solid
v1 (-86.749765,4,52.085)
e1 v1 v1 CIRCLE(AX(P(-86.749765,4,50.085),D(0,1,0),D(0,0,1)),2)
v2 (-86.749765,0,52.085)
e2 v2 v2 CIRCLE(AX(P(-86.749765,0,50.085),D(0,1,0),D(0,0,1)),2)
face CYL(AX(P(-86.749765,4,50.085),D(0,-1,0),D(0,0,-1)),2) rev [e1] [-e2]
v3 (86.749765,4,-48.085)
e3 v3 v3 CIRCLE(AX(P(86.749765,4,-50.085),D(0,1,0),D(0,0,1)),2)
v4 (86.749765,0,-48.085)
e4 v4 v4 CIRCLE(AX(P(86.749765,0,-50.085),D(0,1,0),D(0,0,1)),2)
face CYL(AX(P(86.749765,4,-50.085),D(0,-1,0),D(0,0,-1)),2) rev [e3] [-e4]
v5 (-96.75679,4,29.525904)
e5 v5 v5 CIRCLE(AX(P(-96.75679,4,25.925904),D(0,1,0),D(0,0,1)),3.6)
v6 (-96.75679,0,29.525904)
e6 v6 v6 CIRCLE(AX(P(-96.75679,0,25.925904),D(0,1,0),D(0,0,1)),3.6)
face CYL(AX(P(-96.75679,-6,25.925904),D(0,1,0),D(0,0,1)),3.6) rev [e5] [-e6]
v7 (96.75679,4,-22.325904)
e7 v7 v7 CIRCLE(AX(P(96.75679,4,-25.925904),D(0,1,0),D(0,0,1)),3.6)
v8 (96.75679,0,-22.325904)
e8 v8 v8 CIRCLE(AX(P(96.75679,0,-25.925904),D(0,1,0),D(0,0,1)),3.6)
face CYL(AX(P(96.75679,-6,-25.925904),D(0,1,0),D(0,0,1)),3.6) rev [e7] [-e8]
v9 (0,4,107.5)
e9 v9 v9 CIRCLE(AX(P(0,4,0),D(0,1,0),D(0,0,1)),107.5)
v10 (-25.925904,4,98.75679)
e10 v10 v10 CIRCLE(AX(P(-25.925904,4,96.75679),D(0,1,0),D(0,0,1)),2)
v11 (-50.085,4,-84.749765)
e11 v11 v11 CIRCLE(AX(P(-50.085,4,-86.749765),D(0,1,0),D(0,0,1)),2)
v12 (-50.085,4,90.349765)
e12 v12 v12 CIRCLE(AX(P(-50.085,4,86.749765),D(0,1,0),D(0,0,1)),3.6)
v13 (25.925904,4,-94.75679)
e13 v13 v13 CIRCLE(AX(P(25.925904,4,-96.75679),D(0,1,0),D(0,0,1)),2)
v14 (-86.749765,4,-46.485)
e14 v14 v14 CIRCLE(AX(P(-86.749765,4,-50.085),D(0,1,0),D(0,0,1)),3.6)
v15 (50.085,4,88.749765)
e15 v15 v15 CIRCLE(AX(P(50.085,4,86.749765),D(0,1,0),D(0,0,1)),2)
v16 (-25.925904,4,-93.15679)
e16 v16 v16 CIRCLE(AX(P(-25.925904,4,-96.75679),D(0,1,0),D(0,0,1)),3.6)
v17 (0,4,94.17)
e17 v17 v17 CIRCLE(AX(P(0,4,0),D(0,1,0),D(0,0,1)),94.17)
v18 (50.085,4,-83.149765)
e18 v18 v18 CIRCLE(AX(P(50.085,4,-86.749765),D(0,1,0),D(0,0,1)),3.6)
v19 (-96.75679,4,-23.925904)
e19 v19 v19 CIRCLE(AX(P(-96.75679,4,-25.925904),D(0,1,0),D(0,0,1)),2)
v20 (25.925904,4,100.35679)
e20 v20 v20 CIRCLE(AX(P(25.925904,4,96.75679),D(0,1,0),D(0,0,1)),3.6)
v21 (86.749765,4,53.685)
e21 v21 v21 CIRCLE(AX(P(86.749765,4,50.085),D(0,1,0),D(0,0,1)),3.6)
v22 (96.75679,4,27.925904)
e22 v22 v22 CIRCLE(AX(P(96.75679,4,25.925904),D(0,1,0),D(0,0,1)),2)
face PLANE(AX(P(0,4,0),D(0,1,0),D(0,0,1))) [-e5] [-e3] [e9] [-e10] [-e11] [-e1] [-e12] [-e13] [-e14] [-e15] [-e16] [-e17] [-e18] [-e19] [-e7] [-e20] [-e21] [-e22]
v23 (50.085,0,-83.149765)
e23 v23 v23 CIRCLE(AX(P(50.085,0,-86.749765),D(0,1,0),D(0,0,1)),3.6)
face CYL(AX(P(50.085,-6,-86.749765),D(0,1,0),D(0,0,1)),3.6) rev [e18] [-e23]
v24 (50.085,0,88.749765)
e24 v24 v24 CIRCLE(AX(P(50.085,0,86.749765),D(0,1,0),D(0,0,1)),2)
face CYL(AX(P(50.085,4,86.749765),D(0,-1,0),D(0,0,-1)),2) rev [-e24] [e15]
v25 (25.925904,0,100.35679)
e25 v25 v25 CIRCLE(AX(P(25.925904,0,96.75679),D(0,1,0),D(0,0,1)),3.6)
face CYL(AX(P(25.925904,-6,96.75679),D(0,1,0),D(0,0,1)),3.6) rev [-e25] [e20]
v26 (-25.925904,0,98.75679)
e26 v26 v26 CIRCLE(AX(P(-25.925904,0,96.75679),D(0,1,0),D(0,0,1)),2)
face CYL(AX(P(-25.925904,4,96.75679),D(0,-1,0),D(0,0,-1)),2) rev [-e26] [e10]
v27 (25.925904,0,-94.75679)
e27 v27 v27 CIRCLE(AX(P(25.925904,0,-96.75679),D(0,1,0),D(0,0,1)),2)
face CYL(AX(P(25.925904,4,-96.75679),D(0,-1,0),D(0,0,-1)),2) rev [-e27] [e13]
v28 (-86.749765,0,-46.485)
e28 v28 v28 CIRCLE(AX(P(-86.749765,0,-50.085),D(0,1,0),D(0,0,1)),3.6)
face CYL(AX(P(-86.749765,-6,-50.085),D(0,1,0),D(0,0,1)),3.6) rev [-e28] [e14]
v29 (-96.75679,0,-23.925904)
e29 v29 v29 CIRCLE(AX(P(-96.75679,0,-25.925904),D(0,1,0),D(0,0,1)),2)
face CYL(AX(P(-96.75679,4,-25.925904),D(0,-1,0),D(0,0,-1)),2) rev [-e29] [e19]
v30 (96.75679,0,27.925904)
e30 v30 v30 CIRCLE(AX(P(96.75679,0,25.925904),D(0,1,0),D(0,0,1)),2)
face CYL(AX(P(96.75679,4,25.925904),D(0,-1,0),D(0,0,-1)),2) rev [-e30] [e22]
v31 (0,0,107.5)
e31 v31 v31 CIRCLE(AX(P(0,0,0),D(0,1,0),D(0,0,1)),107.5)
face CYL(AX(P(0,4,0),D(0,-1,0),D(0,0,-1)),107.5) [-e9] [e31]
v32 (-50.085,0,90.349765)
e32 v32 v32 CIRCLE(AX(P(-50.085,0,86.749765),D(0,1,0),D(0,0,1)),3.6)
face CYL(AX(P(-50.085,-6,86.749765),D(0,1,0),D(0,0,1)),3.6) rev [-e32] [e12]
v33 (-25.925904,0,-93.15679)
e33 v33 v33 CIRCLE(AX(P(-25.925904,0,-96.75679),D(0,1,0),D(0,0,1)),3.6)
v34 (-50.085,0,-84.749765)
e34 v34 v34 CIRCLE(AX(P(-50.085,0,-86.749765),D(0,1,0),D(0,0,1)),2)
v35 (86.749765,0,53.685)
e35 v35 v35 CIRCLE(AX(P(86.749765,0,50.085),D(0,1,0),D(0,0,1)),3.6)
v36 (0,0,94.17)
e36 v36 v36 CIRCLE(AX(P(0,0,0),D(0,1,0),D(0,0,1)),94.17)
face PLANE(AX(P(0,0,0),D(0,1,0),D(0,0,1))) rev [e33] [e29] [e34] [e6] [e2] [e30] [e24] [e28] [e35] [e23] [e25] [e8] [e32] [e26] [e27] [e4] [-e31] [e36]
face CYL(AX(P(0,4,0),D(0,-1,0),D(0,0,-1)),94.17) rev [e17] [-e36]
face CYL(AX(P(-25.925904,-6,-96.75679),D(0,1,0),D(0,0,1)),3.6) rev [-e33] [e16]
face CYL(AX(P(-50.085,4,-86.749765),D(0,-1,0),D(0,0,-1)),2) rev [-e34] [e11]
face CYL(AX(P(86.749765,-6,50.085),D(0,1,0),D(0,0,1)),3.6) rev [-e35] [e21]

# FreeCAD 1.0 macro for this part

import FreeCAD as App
import Part
import Sketcher
Q = App.Units.Quantity

doc = App.newDocument("Part")
body = doc.addObject("PartDesign::Body", "Body")

sketch1 = body.newObject("Sketcher::SketchObject", "Sketch")
sketch1.AttachmentSupport = (doc.getObject("XZ_Plane"), [""])
sketch1.MapMode = "FlatFace"
sketch1.addGeometry([
    Part.Circle(App.Vector(0, 0, 0), App.Vector(0, 0, 1), 107.5),
    Part.Circle(App.Vector(-50.1, -86.7, 0), App.Vector(0, 0, 1), 2),
    Part.Circle(App.Vector(-96.8, -25.9, 0), App.Vector(0, 0, 1), 2),
    Part.Circle(App.Vector(-86.7, 50.1, 0), App.Vector(0, 0, 1), 2),
    Part.Circle(App.Vector(-25.9, 96.8, 0), App.Vector(0, 0, 1), 2),
    Part.Circle(App.Vector(25.9, -96.8, 0), App.Vector(0, 0, 1), 2),
    Part.Circle(App.Vector(86.7, -50.1, 0), App.Vector(0, 0, 1), 2),
    Part.Circle(App.Vector(0, 0, 0), App.Vector(0, 0, 1), 94.2),
    Part.Circle(App.Vector(96.8, 25.9, 0), App.Vector(0, 0, 1), 2),
    Part.Circle(App.Vector(50.1, 86.7, 0), App.Vector(0, 0, 1), 2),
], False)
sketch1.addConstraint([
    Sketcher.Constraint("Coincident", 0, 3, -1, 1),
    Sketcher.Constraint("Coincident", 7, 3, -1, 1),
    Sketcher.Constraint("Equal", 1, 2),
    Sketcher.Constraint("Equal", 2, 3),
    Sketcher.Constraint("Equal", 3, 4),
    Sketcher.Constraint("Equal", 4, 5),
    Sketcher.Constraint("Equal", 5, 6),
    Sketcher.Constraint("Equal", 6, 8),
    Sketcher.Constraint("Equal", 8, 9),
    Sketcher.Constraint("Symmetric", 4, 3, 5, 3, -1, 1),
    Sketcher.Constraint("Symmetric", 3, 3, 6, 3, -1, 1),
    Sketcher.Constraint("Symmetric", 2, 3, 8, 3, -1, 1),
    Sketcher.Constraint("Symmetric", 1, 3, 9, 3, -1, 1),
    Sketcher.Constraint("Diameter", 0, Q("215 mm")),
    Sketcher.Constraint("Diameter", 1, Q("4 mm")),
    Sketcher.Constraint("Diameter", 7, Q("188.34 mm")),
    Sketcher.Constraint("DistanceX", 1, 3, -1, 1, Q("50.085 mm")),
    Sketcher.Constraint("DistanceY", -1, 1, 3, 3, Q("50.085 mm")),
    Sketcher.Constraint("DistanceX", 2, 3, -1, 1, Q("96.75679 mm")),
    Sketcher.Constraint("DistanceY", -1, 1, 4, 3, Q("96.75679 mm")),
    Sketcher.Constraint("DistanceY", 1, 3, 2, 3, Q("60.823861 mm")),
    Sketcher.Constraint("DistanceX", 3, 3, 4, 3, Q("60.823861 mm")),
    Sketcher.Constraint("DistanceX", 3, 3, 5, 3, Q("112.675668 mm")),
    Sketcher.Constraint("DistanceY", 1, 3, -1, 1, Q("86.749765 mm")),
])
pad1 = body.newObject("PartDesign::Pad", "Pad")
pad1.Profile = sketch1
pad1.Length = 4
pad1.Reversed = True

sketch2 = body.newObject("Sketcher::SketchObject", "Sketch001")
sketch2.AttachmentSupport = (doc.getObject("XZ_Plane"), [""])
sketch2.MapMode = "FlatFace"
sketch2.AttachmentOffset = App.Placement(App.Vector(0, 0, -4), App.Rotation())
sketch2.addGeometry([
    Part.Circle(App.Vector(96.8, -25.9, 0), App.Vector(0, 0, 1), 3.6),
    Part.Circle(App.Vector(86.7, 50.1, 0), App.Vector(0, 0, 1), 3.6),
    Part.Circle(App.Vector(25.9, 96.8, 0), App.Vector(0, 0, 1), 3.6),
    Part.Circle(App.Vector(-50.1, 86.7, 0), App.Vector(0, 0, 1), 3.6),
    Part.Circle(App.Vector(-96.8, 25.9, 0), App.Vector(0, 0, 1), 3.6),
    Part.Circle(App.Vector(-86.7, -50.1, 0), App.Vector(0, 0, 1), 3.6),
    Part.Circle(App.Vector(-25.9, -96.8, 0), App.Vector(0, 0, 1), 3.6),
    Part.Circle(App.Vector(50.1, -86.7, 0), App.Vector(0, 0, 1), 3.6),
], False)
sketch2.addConstraint([
    Sketcher.Constraint("Equal", 0, 1),
    Sketcher.Constraint("Equal", 1, 2),
    Sketcher.Constraint("Equal", 2, 3),
    Sketcher.Constraint("Equal", 3, 4),
    Sketcher.Constraint("Equal", 4, 5),
    Sketcher.Constraint("Equal", 5, 6),
    Sketcher.Constraint("Equal", 6, 7),
    Sketcher.Constraint("Symmetric", 0, 3, 4, 3, -1, 1),
    Sketcher.Constraint("Symmetric", 1, 3, 5, 3, -1, 1),
    Sketcher.Constraint("Symmetric", 2, 3, 6, 3, -1, 1),
    Sketcher.Constraint("Symmetric", 3, 3, 7, 3, -1, 1),
    Sketcher.Constraint("Diameter", 0, Q("7.2 mm")),
    Sketcher.Constraint("DistanceY", 5, 3, 1, 3, Q("100.17 mm")),
    Sketcher.Constraint("DistanceX", 3, 3, -1, 1, Q("50.085 mm")),
    Sketcher.Constraint("DistanceX", -1, 1, 0, 3, Q("96.75679 mm")),
    Sketcher.Constraint("DistanceY", -1, 1, 2, 3, Q("96.75679 mm")),
    Sketcher.Constraint("DistanceX", 2, 3, 1, 3, Q("60.823861 mm")),
    Sketcher.Constraint("DistanceY", 0, 3, 3, 3, Q("112.675668 mm")),
    Sketcher.Constraint("DistanceY", 4, 3, 3, 3, Q("60.823861 mm")),
    Sketcher.Constraint("DistanceX", 5, 3, 2, 3, Q("112.675668 mm")),
])
pocket1 = body.newObject("PartDesign::Pocket", "Pocket")
pocket1.Profile = sketch2
pocket1.Length = 10
pocket1.Reversed = True

doc.recompute()
